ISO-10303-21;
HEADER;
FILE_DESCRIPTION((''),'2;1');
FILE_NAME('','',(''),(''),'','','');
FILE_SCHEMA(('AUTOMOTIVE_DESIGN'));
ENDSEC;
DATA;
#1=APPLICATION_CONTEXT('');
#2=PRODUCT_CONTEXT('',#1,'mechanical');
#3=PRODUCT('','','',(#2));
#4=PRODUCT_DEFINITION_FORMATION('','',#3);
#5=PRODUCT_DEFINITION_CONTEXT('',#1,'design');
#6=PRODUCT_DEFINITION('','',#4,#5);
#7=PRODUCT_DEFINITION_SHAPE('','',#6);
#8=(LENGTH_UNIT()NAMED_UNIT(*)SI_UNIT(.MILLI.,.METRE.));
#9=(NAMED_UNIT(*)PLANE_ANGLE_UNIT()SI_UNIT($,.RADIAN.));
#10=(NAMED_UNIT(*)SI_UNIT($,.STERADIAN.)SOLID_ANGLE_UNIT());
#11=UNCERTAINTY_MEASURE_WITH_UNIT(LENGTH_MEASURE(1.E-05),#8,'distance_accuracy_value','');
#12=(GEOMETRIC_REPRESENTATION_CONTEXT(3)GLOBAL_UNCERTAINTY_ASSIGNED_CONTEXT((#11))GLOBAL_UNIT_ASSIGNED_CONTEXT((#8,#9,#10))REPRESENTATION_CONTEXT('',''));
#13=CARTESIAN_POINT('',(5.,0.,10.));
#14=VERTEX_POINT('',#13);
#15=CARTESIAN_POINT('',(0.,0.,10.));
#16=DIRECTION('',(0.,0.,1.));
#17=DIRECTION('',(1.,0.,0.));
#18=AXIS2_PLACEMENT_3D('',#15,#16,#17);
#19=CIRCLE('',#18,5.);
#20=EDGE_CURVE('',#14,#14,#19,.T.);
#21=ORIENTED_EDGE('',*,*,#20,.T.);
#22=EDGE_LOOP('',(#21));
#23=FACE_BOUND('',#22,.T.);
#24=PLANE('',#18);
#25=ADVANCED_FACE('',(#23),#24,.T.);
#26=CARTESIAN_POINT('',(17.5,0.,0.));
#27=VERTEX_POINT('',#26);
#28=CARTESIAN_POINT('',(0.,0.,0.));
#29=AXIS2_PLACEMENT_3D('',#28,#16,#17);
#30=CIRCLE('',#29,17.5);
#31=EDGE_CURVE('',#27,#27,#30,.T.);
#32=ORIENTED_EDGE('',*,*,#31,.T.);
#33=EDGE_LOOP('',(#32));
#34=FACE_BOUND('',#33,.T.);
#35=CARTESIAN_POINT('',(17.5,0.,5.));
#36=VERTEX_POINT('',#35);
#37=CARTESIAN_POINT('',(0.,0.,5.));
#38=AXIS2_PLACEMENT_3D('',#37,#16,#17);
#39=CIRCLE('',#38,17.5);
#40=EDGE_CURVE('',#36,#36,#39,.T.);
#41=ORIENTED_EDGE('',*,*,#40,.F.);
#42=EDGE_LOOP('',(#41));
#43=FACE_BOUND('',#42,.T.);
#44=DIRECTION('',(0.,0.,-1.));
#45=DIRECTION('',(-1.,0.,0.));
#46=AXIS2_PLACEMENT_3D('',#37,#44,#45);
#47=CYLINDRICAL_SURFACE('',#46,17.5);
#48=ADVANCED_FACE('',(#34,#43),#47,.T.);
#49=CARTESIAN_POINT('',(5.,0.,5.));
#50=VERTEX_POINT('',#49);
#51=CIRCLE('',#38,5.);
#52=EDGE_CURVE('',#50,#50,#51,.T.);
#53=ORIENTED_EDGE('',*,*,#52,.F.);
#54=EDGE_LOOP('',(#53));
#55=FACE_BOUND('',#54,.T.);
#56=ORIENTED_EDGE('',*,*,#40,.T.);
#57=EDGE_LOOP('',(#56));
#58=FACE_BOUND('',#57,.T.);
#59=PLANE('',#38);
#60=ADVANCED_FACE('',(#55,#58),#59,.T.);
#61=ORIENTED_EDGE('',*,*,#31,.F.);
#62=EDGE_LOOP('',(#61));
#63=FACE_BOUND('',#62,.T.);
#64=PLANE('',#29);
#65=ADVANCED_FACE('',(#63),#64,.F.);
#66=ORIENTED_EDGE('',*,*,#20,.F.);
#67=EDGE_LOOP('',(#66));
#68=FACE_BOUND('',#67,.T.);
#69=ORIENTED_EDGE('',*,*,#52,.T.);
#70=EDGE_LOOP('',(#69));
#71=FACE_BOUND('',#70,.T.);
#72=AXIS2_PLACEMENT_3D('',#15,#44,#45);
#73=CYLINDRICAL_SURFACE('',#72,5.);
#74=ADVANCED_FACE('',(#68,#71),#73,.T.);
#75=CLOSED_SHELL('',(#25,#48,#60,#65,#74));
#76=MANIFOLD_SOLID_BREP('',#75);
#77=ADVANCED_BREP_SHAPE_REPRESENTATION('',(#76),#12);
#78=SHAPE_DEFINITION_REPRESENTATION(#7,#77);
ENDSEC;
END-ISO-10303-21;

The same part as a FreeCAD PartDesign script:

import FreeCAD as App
import Part
import Sketcher
Q = App.Units.Quantity

doc = App.newDocument("Part")
body = doc.addObject("PartDesign::Body", "Body")

sketch1 = body.newObject("Sketcher::SketchObject", "Sketch")
sketch1.AttachmentSupport = (doc.getObject("XY_Plane"), [""])
sketch1.MapMode = "FlatFace"
sketch1.addGeometry(Part.Circle(App.Vector(0, 0, 0), App.Vector(0, 0, 1), 17.5), False)
sketch1.addGeometry(Part.Circle(App.Vector(0, 0, 0), App.Vector(0, 0, 1), 5), False)
sketch1.addConstraint(Sketcher.Constraint("Coincident", 0, 3, -1, 1))
sketch1.addConstraint(Sketcher.Constraint("Coincident", 1, 3, -1, 1))
sketch1.addConstraint(Sketcher.Constraint("Diameter", 0, Q("35 mm")))
sketch1.addConstraint(Sketcher.Constraint("Diameter", 1, Q("10 mm")))
pad1 = body.newObject("PartDesign::Pad", "Pad")
pad1.Profile = sketch1
pad1.Length = 5

sketch2 = body.newObject("Sketcher::SketchObject", "Sketch001")
sketch2.AttachmentSupport = (doc.getObject("XY_Plane"), [""])
sketch2.MapMode = "FlatFace"
sketch2.addGeometry(Part.Circle(App.Vector(0, 0, 0), App.Vector(0, 0, 1), 5), False)
sketch2.addConstraint(Sketcher.Constraint("Coincident", 0, 3, -1, 1))
sketch2.addConstraint(Sketcher.Constraint("Diameter", 0, Q("10 mm")))
pad2 = body.newObject("PartDesign::Pad", "Pad001")
pad2.Profile = sketch2
pad2.Length = 10

doc.recompute()
